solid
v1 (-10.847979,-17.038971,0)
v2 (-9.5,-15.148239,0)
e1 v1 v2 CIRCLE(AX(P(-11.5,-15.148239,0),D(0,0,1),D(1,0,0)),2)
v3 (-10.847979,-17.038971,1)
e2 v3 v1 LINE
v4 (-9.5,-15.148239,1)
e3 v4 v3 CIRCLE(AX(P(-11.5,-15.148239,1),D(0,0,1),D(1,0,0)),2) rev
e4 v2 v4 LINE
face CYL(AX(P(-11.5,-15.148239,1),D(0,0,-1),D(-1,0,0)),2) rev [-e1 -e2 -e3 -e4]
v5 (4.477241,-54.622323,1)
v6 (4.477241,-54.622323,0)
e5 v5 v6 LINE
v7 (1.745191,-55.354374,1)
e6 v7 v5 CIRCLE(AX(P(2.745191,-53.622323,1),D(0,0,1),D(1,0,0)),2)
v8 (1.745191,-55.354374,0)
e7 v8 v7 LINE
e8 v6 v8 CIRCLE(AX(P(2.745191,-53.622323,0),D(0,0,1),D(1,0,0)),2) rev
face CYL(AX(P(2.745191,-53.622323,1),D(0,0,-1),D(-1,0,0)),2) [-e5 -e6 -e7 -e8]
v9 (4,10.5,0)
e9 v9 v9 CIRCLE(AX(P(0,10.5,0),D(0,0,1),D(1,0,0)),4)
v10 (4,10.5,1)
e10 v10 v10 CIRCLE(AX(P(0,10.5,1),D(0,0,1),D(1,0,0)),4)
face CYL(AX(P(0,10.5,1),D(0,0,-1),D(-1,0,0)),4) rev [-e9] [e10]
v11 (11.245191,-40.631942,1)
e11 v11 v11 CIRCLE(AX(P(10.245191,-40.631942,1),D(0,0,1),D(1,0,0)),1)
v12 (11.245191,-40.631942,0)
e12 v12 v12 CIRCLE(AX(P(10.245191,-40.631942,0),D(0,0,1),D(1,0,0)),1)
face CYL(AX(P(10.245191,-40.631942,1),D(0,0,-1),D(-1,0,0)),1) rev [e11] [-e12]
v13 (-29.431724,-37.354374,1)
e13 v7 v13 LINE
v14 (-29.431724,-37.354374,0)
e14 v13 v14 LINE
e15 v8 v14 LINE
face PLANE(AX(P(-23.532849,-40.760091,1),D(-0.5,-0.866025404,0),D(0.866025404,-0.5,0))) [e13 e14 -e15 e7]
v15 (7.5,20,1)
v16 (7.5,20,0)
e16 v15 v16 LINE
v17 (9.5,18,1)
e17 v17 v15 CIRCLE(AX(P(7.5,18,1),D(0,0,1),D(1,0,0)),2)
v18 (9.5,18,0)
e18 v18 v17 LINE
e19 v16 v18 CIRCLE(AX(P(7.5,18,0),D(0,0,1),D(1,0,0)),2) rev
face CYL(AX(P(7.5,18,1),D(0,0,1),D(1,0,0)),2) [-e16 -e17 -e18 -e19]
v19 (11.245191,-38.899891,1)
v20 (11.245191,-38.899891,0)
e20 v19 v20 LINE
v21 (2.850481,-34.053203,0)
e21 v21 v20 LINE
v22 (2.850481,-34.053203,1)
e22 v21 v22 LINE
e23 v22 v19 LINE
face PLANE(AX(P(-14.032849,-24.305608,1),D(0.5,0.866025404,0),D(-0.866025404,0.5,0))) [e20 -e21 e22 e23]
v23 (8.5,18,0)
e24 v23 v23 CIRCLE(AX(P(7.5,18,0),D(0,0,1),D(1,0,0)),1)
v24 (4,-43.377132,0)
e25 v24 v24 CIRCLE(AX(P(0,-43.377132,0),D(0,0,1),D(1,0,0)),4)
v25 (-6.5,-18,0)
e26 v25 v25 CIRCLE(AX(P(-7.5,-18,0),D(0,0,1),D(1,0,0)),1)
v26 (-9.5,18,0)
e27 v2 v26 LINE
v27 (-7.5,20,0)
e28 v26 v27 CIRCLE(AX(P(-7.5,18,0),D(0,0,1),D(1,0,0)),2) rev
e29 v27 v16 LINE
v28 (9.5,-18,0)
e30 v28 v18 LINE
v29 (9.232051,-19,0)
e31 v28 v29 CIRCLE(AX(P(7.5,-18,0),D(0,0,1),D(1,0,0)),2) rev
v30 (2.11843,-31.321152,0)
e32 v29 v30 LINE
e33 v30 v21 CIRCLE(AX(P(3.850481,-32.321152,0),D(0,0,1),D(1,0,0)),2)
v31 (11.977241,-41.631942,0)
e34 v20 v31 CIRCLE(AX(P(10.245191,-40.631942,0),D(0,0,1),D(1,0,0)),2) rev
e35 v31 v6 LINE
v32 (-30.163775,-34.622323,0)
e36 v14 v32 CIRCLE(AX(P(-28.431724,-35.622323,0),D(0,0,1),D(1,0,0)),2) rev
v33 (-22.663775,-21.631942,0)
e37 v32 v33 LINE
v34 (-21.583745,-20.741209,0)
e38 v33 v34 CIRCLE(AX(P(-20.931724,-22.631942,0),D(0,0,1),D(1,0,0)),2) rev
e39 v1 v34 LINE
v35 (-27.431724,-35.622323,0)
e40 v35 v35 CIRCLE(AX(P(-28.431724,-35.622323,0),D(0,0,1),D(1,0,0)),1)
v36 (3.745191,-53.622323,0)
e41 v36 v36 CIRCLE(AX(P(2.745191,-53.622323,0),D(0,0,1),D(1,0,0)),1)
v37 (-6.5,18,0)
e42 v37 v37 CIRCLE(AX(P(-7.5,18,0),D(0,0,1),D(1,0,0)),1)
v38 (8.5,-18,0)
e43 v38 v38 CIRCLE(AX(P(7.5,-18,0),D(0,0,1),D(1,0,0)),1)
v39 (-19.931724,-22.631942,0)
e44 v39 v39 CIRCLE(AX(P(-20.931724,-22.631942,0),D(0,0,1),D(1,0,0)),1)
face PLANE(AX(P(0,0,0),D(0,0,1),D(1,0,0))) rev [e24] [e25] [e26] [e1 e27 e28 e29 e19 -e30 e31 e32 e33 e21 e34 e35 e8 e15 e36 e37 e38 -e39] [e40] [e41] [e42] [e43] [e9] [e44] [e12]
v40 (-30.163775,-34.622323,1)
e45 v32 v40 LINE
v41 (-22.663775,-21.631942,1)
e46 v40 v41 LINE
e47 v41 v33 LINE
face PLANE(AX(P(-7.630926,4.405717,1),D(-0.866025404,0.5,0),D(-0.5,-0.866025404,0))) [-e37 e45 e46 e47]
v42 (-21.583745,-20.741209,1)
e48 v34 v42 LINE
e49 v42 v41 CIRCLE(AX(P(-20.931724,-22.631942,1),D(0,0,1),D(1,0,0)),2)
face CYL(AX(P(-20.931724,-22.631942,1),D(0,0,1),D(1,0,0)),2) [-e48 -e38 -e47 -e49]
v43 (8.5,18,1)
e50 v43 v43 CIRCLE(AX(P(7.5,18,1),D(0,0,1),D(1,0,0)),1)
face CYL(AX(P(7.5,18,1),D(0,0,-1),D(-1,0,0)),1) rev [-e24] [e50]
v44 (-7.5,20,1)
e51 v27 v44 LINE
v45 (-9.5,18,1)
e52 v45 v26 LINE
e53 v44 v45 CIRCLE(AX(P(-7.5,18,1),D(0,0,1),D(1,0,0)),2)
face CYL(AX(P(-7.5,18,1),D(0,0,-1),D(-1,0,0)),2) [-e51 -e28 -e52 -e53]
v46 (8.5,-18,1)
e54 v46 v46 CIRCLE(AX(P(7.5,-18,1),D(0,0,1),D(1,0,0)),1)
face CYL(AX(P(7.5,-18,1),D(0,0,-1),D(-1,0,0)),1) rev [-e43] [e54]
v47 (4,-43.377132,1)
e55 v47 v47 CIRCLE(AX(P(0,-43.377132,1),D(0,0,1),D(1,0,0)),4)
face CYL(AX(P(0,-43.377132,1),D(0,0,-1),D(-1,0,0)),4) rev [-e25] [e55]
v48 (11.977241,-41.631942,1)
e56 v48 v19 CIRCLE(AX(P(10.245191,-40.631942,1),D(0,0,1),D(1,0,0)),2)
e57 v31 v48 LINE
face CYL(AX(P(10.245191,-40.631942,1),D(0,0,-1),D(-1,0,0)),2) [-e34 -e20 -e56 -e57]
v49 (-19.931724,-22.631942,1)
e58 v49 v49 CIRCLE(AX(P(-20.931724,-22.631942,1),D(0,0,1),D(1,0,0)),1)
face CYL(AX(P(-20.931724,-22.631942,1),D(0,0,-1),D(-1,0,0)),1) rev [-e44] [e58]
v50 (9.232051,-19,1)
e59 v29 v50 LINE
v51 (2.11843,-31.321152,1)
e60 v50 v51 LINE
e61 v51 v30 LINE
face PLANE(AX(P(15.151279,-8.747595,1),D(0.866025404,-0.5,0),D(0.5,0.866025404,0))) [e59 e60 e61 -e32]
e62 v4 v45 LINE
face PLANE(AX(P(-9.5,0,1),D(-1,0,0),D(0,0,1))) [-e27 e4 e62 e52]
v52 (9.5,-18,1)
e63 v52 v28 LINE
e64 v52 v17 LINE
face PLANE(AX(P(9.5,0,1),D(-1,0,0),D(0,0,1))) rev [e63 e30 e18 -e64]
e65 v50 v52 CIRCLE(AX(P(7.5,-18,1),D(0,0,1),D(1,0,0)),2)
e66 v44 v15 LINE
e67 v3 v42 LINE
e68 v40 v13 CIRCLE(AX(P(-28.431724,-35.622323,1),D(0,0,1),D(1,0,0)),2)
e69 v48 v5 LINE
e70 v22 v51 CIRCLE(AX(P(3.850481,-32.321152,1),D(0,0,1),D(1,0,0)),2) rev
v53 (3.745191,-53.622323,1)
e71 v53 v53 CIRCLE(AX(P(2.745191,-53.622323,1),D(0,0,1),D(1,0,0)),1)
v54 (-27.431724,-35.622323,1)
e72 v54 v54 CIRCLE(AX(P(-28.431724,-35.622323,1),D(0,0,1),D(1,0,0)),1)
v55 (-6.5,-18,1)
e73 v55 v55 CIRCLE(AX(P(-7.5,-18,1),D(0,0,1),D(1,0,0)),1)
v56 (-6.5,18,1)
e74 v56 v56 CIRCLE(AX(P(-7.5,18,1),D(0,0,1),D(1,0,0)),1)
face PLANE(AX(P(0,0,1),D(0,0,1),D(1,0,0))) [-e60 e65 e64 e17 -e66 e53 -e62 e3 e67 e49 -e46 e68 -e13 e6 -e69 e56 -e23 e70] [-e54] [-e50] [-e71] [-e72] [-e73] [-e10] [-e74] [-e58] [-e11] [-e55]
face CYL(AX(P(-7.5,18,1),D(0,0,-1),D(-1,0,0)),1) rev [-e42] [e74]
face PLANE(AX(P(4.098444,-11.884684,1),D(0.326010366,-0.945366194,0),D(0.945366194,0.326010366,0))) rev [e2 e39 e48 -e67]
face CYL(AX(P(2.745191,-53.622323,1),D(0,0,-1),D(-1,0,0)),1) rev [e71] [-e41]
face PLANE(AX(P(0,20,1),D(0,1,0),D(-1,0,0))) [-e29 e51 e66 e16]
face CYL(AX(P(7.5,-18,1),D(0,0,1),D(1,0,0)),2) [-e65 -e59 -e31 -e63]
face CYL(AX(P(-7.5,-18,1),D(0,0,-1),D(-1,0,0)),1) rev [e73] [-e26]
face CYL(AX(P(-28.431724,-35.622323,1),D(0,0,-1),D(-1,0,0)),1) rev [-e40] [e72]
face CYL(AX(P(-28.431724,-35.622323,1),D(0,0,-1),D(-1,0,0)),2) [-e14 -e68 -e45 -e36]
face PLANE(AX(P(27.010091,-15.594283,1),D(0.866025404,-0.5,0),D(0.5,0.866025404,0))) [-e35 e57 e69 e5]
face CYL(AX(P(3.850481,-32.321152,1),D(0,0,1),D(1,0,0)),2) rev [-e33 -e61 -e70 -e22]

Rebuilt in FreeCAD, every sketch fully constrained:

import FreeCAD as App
import Part
import Sketcher

V = App.Vector
Q = App.Units.Quantity


def edges_at(feature, points):
    """Names of the edges that pass closest to the given points."""
    edges = feature.Shape.Edges
    near = lambda p: min(range(len(edges)), key=lambda i: edges[i].distToShape(Part.Vertex(*p))[0])
    return sorted({f"Edge{near(p) + 1}" for p in points})

doc = App.newDocument("Part")
body = doc.addObject("PartDesign::Body", "Body")

sketch1 = doc.addObject("Sketcher::SketchObject", "Sketch")
body.addObject(sketch1)
sketch1.AttachmentSupport = (doc.XY_Plane, [""])
sketch1.MapMode = "FlatFace"
sketch1.addGeometry([
    Part.LineSegment(V(-22.3, -21, 0), V(-31.2, -36.4, 0)),
    Part.LineSegment(V(-31.2, -36.4, 0), V(3.5, -56.4, 0)),
    Part.LineSegment(V(3.5, -56.4, 0), V(13, -39.9, 0)),
    Part.LineSegment(V(13, -39.9, 0), V(1.1, -33.1, 0)),
    Part.LineSegment(V(1.1, -33.1, 0), V(9.5, -18.5, 0)),
    Part.LineSegment(V(9.5, -18.5, 0), V(9.5, 20, 0)),
    Part.LineSegment(V(9.5, 20, 0), V(-9.5, 20, 0)),
    Part.LineSegment(V(-9.5, 20, 0), V(-9.5, -16.6, 0)),
    Part.LineSegment(V(-9.5, -16.6, 0), V(-22.3, -21, 0)),
    Part.Circle(V(2.7, -53.6, 0), V(0, 0, 1), 1),
    Part.Circle(V(10.2, -40.6, 0), V(0, 0, 1), 1),
    Part.Circle(V(0, -43.4, 0), V(0, 0, 1), 4),
    Part.Circle(V(7.5, -18, 0), V(0, 0, 1), 1),
    Part.Circle(V(-7.5, -18, 0), V(0, 0, 1), 1),
    Part.Circle(V(-28.4, -35.6, 0), V(0, 0, 1), 1),
    Part.Circle(V(-20.9, -22.6, 0), V(0, 0, 1), 1),
    Part.Circle(V(7.5, 18, 0), V(0, 0, 1), 1),
    Part.Circle(V(0, 10.5, 0), V(0, 0, 1), 4),
    Part.Circle(V(-7.5, 18, 0), V(0, 0, 1), 1),
], False)
sketch1.addConstraint([
    Sketcher.Constraint("Coincident", 0, 2, 1, 1),
    Sketcher.Constraint("Coincident", 1, 2, 2, 1),
    Sketcher.Constraint("Coincident", 2, 2, 3, 1),
    Sketcher.Constraint("Coincident", 3, 2, 4, 1),
    Sketcher.Constraint("Coincident", 4, 2, 5, 1),
    Sketcher.Constraint("Coincident", 5, 2, 6, 1),
    Sketcher.Constraint("Coincident", 6, 2, 7, 1),
    Sketcher.Constraint("Coincident", 7, 2, 8, 1),
    Sketcher.Constraint("Coincident", 8, 2, 0, 1),
    Sketcher.Constraint("Vertical", 5),
    Sketcher.Constraint("Horizontal", 6),
    Sketcher.Constraint("Vertical", 7),
    Sketcher.Constraint("Equal", 9, 10),
    Sketcher.Constraint("Equal", 10, 12),
    Sketcher.Constraint("Equal", 12, 13),
    Sketcher.Constraint("Equal", 13, 14),
    Sketcher.Constraint("Equal", 14, 15),
    Sketcher.Constraint("Equal", 15, 16),
    Sketcher.Constraint("Equal", 11, 17),
    Sketcher.Constraint("Equal", 16, 18),
    Sketcher.Constraint("Symmetric", 13, 3, 16, 3, -1, 1),
    Sketcher.Constraint("Symmetric", 12, 3, 18, 3, -1, 1),
    Sketcher.Constraint("Symmetric", 12, 3, 13, 3, -2),
    Sketcher.Constraint("PointOnObject", 11, 3, -2),
    Sketcher.Constraint("PointOnObject", 17, 3, -2),
    Sketcher.Constraint("Perpendicular", 0, 1),
    Sketcher.Constraint("Perpendicular", 1, 2),
    Sketcher.Constraint("Perpendicular", 2, 3),
    Sketcher.Constraint("Perpendicular", 3, 4),
    Sketcher.Constraint("Diameter", 9, 2.0),
    Sketcher.Constraint("Diameter", 11, 8.0),
    Sketcher.Constraint("DistanceX", 6, 2, 6, 1, 19.0),
    Sketcher.Constraint("Angle", 0, Q("-120 deg")),
    Sketcher.Constraint("Distance", 1, 40.0),
    Sketcher.Constraint("Distance", 2, 19.0),
    Sketcher.Constraint("DistanceY", 12, 3, -1, 1, 18.0),
    Sketcher.Constraint("DistanceY", -1, 1, 5, 2, 20.0),
    Sketcher.Constraint("DistanceX", 13, 3, 12, 3, 15.0),
    Sketcher.Constraint("DistanceY", 9, 3, 14, 3, 18.0),
    Sketcher.Constraint("DistanceY", 10, 3, 15, 3, 18.0),
    Sketcher.Constraint("DistanceX", 12, 3, 4, 2, 2.0),
    Sketcher.Constraint("DistanceY", -1, 1, 17, 3, 10.5),
    Sketcher.Constraint("DistanceX", 9, 3, 10, 3, 7.5),
    Sketcher.Constraint("DistanceX", 14, 3, 15, 3, 7.5),
    Sketcher.Constraint("DistanceY", 5, 1, 5, 2, 38.535898),
    Sketcher.Constraint("DistanceY", 7, 2, 7, 1, 36.574119),
    Sketcher.Constraint("Distance", 4, 16.76314),
    Sketcher.Constraint("DistanceX", -1, 1, 9, 3, 2.745191),
    Sketcher.Constraint("DistanceY", 10, 3, -1, 1, 40.631942),
    Sketcher.Constraint("DistanceX", -1, 1, 1, 2, 3.477241),
    Sketcher.Constraint("DistanceY", 9, 3, 10, 3, 12.990381),
    Sketcher.Constraint("DistanceY", 9, 3, 11, 3, 10.245191),
    Sketcher.Constraint("DistanceX", 0, 2, 14, 3, 2.732051),
    Sketcher.Constraint("DistanceX", 0, 2, 8, 2, 8.873618),
])
pad1 = doc.addObject("PartDesign::Pad", "Pad")
body.addObject(pad1)
pad1.Profile = sketch1
pad1.Length = 1
doc.recompute()

fillet = doc.addObject("PartDesign::Fillet", "Fillet")
body.addObject(fillet)
fillet.Base = (pad1, edges_at(pad1, [
    (-22.29, -20.985, 0.5),
    (-9.5, -16.574, 0.5),
    (-9.5, 20, 0.5),
    (9.5, 20, 0.5),
    (9.5, -18.536, 0.5),
    (1.118, -33.053, 0.5),
    (12.977, -39.9, 0.5),
    (3.477, -56.354, 0.5),
    (-31.164, -36.354, 0.5),
]))
fillet.Radius = 2

doc.recompute()
